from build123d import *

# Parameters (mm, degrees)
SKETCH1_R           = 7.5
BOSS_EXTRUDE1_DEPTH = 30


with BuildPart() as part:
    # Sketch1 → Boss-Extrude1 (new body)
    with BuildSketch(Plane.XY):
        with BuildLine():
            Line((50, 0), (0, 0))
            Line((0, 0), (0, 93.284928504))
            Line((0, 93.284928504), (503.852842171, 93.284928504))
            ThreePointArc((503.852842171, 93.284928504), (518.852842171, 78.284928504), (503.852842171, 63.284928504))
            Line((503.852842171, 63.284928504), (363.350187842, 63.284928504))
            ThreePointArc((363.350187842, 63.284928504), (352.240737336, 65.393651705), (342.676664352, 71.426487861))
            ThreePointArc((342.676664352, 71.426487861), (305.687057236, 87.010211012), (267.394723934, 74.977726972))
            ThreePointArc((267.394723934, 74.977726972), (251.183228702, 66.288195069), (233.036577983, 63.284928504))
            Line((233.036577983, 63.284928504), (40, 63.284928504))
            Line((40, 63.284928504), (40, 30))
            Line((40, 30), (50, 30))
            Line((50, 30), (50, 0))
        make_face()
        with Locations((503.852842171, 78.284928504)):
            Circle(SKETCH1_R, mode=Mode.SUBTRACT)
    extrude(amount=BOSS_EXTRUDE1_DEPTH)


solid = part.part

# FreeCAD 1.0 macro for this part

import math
import FreeCAD as App
import Part
import Sketcher
Q = App.Units.Quantity

doc = App.newDocument("Part")
params = doc.addObject("Spreadsheet::Sheet", "Params")
for row, (alias, value) in enumerate([
    ("sketch1_diameter", "15 mm"),
    ("sketch1_radius", "15 mm"),
    ("sketch1_width", "50 mm"),
    ("sketch1_width2", "10 mm"),
    ("sketch1_height", "30 mm"),
    ("pad1_length", "30 mm"),
], start=1):
    params.set(f"A{row}", alias)
    params.set(f"B{row}", "=" + value)
    params.setAlias(f"B{row}", alias)

body = doc.addObject("PartDesign::Body", "Body")

# Sketch on XY plane
sketch1 = doc.addObject("Sketcher::SketchObject", "Sketch")
body.addObject(sketch1)
sketch1.AttachmentSupport = (doc.XY_Plane, [""])
sketch1.MapMode = "FlatFace"
sketch1.addGeometry([
    Part.LineSegment(App.Vector(0, 0, 0), App.Vector(50, 0, 0)),  # 0
    Part.LineSegment(App.Vector(50, 0, 0), App.Vector(50, 30, 0)),  # 1
    Part.LineSegment(App.Vector(50, 30, 0), App.Vector(40, 30, 0)),  # 2
    Part.LineSegment(App.Vector(40, 30, 0), App.Vector(40, 63, 0)),  # 3
    Part.LineSegment(App.Vector(40, 63, 0), App.Vector(233, 63, 0)),  # 4
    Part.ArcOfCircle(Part.Circle(App.Vector(233, 120, 0), App.Vector(0, 0, 1), 56), math.radians(-90), math.radians(-52)),  # 5
    Part.ArcOfCircle(Part.Circle(App.Vector(303, 29, 0), App.Vector(0, 0, 1), 58), math.radians(47), math.radians(128)),  # 6
    Part.ArcOfCircle(Part.Circle(App.Vector(363, 94, 0), App.Vector(0, 0, 1), 30), math.radians(-133), math.radians(-90)),  # 7
    Part.LineSegment(App.Vector(363, 63, 0), App.Vector(504, 63, 0)),  # 8
    Part.ArcOfCircle(Part.Circle(App.Vector(504, 78, 0), App.Vector(0, 0, 1), 15), math.radians(-90), math.radians(90)),  # 9
    Part.LineSegment(App.Vector(504, 93, 0), App.Vector(0, 93, 0)),  # 10
    Part.LineSegment(App.Vector(0, 93, 0), App.Vector(0, 0, 0)),  # 11
    Part.Circle(App.Vector(504, 78, 0), App.Vector(0, 0, 1), 8),  # 12
], False)
sketch1.addConstraint([
    Sketcher.Constraint("Coincident", 0, 2, 1, 1),
    Sketcher.Constraint("Coincident", 1, 2, 2, 1),
    Sketcher.Constraint("Coincident", 2, 2, 3, 1),
    Sketcher.Constraint("Coincident", 3, 2, 4, 1),
    Sketcher.Constraint("Tangent", 4, 2, 5, 1),
    Sketcher.Constraint("Tangent", 5, 2, 6, 2),
    Sketcher.Constraint("Tangent", 6, 1, 7, 1),
    Sketcher.Constraint("Tangent", 7, 2, 8, 1),
    Sketcher.Constraint("Tangent", 8, 2, 9, 1),
    Sketcher.Constraint("Tangent", 9, 2, 10, 1),
    Sketcher.Constraint("Coincident", 10, 2, 11, 1),
    Sketcher.Constraint("Coincident", 11, 2, 0, 1),
    Sketcher.Constraint("Horizontal", 0),
    Sketcher.Constraint("Vertical", 1),
    Sketcher.Constraint("Horizontal", 2),
    Sketcher.Constraint("Vertical", 3),
    Sketcher.Constraint("Horizontal", 4),
    Sketcher.Constraint("Horizontal", 8),
    Sketcher.Constraint("Horizontal", 10),
    Sketcher.Constraint("Vertical", 11),
    Sketcher.Constraint("Coincident", 11, 2, -1, 1),
    Sketcher.Constraint("Coincident", 12, 3, 9, 3),
    Sketcher.Constraint("Horizontal", 4, 2, 7, 2),
    Sketcher.Constraint("Diameter", 12, Q("15 mm")),
    Sketcher.Constraint("Radius", 9, Q("15 mm")),
    Sketcher.Constraint("DistanceX", 0, 1, 0, 2, Q("50 mm")),
    Sketcher.Constraint("DistanceX", 2, 2, 2, 1, Q("10 mm")),
    Sketcher.Constraint("DistanceY", 1, 1, 1, 2, Q("30 mm")),
    Sketcher.Constraint("Radius", 6, Q("58.273531 mm")),
    Sketcher.Constraint("Radius", 7, Q("30.318489 mm")),
    Sketcher.Constraint("Radius", 5, Q("56.325427 mm")),
    Sketcher.Constraint("DistanceY", 3, 1, 3, 2, Q("33.284929 mm")),
    Sketcher.Constraint("DistanceX", -1, 1, 6, 3, Q("302.941201 mm")),
    Sketcher.Constraint("DistanceY", 4, 2, 5, 2, Q("11.692798 mm")),
    Sketcher.Constraint("DistanceX", 8, 1, 8, 2, Q("140.502654 mm")),
])
sketch1.setExpression("Constraints[23]", "Params.sketch1_diameter")
sketch1.setExpression("Constraints[24]", "Params.sketch1_radius")
sketch1.setExpression("Constraints[25]", "Params.sketch1_width")
sketch1.setExpression("Constraints[26]", "Params.sketch1_width2")
sketch1.setExpression("Constraints[27]", "Params.sketch1_height")
pad1 = doc.addObject("PartDesign::Pad", "Pad")
body.addObject(pad1)
pad1.Profile = sketch1
pad1.setExpression("Length", "Params.pad1_length")

doc.recompute()
